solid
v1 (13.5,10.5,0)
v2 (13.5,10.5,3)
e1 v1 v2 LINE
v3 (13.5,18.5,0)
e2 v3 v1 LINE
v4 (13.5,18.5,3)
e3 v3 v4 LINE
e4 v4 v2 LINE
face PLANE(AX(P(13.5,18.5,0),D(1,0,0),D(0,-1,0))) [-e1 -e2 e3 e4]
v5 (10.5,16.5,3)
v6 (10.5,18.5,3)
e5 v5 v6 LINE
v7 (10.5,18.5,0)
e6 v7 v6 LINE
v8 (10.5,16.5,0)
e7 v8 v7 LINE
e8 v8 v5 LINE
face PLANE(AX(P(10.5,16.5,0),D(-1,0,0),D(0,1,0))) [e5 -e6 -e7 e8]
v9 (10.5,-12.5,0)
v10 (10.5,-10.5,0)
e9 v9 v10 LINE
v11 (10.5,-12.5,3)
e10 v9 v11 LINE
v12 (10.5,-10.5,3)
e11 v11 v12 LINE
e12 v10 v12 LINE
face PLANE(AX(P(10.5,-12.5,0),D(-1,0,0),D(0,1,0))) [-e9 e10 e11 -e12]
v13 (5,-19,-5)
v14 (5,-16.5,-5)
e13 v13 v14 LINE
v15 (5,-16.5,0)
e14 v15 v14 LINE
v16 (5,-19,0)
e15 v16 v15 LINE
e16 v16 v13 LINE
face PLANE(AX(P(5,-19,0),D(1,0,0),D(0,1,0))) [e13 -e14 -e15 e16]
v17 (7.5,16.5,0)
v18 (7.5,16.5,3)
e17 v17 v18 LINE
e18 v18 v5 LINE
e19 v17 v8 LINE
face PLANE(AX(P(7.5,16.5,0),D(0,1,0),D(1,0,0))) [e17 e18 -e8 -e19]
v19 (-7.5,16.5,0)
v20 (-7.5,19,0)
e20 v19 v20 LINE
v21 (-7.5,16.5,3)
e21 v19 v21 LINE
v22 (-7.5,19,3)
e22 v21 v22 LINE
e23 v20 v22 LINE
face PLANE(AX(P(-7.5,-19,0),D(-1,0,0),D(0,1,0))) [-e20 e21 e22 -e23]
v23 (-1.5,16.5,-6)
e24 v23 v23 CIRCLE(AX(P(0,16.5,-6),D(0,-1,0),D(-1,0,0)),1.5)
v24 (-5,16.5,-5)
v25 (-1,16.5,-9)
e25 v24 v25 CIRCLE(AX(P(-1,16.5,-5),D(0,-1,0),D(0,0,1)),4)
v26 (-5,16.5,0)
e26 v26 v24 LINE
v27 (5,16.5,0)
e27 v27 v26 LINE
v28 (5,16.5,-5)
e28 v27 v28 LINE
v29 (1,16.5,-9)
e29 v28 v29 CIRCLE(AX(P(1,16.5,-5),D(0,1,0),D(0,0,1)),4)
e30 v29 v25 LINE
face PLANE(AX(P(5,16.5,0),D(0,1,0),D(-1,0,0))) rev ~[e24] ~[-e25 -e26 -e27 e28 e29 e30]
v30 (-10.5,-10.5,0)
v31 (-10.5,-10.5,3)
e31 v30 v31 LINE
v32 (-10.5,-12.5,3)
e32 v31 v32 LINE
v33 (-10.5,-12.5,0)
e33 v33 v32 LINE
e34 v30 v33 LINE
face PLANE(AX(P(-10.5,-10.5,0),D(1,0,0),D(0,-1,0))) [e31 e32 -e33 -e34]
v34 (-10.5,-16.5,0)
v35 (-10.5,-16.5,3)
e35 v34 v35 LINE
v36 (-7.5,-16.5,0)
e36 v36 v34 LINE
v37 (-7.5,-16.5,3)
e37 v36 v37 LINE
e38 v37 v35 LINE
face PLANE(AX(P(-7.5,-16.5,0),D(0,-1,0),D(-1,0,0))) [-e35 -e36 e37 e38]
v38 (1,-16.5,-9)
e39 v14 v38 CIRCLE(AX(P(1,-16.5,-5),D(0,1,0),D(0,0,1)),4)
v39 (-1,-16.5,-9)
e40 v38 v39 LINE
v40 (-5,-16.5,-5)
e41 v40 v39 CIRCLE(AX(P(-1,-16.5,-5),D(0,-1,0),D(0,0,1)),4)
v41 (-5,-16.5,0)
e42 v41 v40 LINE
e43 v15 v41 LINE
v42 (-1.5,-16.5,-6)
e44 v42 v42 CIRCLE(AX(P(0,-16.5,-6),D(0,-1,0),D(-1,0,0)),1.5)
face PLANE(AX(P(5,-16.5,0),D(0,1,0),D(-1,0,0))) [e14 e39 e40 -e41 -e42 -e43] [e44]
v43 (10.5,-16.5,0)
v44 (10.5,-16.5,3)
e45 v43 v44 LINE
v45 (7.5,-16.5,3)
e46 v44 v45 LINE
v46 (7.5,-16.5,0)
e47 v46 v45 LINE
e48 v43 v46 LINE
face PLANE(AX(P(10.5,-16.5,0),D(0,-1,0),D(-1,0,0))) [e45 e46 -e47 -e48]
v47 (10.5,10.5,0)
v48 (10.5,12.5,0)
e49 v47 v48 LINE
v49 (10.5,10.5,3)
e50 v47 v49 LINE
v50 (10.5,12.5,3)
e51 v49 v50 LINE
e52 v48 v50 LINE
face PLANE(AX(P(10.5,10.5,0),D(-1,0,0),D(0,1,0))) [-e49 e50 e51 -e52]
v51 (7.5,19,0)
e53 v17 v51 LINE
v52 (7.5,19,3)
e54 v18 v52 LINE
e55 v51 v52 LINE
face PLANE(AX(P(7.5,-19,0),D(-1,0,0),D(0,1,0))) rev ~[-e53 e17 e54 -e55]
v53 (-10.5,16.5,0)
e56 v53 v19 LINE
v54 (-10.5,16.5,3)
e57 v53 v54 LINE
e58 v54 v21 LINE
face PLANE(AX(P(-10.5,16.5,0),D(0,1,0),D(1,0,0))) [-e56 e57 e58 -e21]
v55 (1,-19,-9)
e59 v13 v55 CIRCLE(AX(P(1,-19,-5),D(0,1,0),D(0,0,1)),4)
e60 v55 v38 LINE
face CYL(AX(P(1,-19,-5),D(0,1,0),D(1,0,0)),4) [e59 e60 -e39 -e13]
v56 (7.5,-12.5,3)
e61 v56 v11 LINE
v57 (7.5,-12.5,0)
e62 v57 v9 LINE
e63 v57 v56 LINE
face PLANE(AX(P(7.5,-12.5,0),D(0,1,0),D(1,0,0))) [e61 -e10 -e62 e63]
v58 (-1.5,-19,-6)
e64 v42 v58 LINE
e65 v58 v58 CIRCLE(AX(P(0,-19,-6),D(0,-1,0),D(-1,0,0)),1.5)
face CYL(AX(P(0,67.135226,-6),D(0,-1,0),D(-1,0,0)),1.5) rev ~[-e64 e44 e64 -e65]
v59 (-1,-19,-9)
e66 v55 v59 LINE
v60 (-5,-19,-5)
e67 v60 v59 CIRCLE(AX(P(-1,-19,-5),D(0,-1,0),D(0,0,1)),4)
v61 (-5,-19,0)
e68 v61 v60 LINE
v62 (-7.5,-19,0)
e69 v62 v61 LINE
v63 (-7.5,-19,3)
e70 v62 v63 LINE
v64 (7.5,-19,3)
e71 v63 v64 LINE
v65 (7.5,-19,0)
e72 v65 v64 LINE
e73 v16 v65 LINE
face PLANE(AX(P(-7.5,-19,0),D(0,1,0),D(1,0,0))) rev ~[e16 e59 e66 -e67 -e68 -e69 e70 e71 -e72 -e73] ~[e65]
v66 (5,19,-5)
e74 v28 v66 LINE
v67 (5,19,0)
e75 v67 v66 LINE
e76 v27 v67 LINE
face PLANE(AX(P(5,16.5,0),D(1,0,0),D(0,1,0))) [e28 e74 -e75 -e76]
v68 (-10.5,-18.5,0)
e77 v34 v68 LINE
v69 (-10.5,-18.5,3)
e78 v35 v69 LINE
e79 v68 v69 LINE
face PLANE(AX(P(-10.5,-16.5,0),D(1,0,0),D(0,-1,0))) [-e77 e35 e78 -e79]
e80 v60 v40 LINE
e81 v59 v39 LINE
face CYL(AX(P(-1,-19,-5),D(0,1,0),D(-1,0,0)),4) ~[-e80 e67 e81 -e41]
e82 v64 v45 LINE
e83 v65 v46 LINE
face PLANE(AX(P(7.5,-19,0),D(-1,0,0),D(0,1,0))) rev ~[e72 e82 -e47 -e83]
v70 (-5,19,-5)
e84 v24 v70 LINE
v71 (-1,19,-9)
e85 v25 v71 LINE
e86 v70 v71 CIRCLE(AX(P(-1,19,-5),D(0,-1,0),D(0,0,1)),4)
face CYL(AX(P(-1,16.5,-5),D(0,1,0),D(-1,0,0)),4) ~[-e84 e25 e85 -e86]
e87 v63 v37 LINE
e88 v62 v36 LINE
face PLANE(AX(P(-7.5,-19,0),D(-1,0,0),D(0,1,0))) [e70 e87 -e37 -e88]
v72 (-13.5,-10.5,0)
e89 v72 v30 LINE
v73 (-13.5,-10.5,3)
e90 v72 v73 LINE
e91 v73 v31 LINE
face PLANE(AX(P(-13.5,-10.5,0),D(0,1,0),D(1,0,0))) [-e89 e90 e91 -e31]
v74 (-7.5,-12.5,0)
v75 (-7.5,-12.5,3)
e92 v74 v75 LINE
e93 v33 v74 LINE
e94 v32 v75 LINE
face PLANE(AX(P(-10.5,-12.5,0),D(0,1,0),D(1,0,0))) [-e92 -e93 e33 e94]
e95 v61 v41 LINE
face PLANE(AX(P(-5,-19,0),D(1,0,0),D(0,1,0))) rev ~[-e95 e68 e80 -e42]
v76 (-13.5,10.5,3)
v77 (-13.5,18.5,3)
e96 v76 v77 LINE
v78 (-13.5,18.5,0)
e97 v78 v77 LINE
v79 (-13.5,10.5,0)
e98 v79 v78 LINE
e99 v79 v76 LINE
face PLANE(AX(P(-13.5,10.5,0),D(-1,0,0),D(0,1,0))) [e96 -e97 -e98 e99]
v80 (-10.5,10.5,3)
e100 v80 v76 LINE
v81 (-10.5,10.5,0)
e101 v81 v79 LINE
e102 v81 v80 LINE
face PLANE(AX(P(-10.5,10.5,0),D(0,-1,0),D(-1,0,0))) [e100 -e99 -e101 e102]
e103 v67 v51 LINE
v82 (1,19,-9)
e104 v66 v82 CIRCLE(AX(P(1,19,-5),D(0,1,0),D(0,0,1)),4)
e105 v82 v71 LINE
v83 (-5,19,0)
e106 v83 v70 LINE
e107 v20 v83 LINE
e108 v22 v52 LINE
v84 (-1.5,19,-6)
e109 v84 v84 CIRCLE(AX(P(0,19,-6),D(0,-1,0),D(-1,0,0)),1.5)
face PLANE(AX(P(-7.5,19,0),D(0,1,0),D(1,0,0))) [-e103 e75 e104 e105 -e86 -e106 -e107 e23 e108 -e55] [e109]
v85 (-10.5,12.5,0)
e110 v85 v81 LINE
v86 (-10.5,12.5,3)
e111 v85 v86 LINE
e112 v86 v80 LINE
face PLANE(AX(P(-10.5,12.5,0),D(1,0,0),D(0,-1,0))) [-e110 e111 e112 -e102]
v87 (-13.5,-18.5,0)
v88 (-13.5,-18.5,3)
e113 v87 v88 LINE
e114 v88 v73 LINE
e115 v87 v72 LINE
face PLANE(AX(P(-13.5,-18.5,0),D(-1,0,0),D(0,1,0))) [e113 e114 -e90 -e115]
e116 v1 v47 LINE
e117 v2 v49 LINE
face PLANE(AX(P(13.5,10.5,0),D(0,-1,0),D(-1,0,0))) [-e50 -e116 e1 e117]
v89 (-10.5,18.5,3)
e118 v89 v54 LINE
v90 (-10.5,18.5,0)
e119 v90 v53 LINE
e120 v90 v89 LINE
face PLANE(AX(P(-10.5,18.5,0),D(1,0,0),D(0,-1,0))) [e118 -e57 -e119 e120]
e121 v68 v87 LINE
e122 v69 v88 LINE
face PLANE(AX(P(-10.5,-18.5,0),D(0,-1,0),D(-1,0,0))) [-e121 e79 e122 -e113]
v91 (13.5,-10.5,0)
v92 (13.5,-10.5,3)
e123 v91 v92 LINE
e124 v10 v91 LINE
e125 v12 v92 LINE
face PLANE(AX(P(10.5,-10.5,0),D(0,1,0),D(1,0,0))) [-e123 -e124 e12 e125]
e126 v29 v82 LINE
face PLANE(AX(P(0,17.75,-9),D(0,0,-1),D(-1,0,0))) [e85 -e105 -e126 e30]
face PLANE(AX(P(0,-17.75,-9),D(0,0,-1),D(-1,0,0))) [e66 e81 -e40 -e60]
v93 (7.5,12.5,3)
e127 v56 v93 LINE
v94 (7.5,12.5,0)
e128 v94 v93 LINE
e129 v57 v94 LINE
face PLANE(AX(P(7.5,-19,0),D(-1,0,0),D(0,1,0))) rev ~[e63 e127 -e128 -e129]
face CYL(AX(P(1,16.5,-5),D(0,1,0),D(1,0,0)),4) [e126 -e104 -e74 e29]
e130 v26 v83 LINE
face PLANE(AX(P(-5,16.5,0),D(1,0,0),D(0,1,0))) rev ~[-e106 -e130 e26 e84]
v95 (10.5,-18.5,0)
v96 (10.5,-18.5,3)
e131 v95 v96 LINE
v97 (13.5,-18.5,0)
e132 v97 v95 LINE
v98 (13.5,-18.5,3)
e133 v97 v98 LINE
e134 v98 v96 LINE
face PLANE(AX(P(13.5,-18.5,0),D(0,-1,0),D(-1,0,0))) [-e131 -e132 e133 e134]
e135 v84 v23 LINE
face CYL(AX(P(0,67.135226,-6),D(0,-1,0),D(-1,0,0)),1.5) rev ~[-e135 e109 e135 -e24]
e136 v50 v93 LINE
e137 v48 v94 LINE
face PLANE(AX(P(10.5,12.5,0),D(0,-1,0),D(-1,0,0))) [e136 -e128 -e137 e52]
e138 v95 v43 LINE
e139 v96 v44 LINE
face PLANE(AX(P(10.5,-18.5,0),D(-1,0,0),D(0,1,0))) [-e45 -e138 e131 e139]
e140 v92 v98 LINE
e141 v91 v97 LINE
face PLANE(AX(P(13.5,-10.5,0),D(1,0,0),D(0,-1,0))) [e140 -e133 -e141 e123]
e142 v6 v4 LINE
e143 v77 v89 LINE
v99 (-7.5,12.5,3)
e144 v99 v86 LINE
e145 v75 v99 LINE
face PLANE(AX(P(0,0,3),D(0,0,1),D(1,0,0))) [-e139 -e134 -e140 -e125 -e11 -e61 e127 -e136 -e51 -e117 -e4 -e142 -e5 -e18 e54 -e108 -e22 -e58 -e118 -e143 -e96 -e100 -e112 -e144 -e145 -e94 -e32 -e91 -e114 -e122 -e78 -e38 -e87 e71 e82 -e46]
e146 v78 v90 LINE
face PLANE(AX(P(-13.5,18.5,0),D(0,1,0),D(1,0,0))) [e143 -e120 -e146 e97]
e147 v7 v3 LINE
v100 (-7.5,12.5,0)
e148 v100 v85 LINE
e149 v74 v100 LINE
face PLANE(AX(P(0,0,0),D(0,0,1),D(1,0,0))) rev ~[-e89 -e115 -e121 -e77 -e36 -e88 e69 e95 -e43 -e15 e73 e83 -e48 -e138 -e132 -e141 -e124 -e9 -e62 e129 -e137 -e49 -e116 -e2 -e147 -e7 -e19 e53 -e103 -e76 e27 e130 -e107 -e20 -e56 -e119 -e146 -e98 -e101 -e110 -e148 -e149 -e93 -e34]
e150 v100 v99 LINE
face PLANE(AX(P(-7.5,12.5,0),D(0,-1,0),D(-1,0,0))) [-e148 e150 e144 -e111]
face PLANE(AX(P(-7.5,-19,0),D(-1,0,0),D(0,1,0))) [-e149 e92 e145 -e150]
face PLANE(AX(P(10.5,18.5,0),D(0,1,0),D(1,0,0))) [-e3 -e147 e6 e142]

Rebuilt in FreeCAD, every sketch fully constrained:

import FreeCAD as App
import Part
import Sketcher

V = App.Vector


def edges_at(feature, points):
    """Names of the edges that pass closest to the given points."""
    edges = feature.Shape.Edges
    near = lambda p: min(range(len(edges)), key=lambda i: edges[i].distToShape(Part.Vertex(*p))[0])
    return sorted({f"Edge{near(p) + 1}" for p in points})


def add_polygon(sketch, points):
    """Adds a closed chain of lines whose ends are joined by coincident constraints."""
    first, n = sketch.GeometryCount, len(points)
    for a, b in zip(points, points[1:] + points[:1]):
        sketch.addGeometry(Part.LineSegment(App.Vector(*a, 0), App.Vector(*b, 0)), False)
    for i in range(n):
        sketch.addConstraint(Sketcher.Constraint("Coincident", first + i, 2, first + (i + 1) % n, 1))

doc = App.newDocument("Part")
body = doc.addObject("PartDesign::Body", "Body")

sketch1 = body.newObject("Sketcher::SketchObject", "Sketch")
sketch1.AttachmentSupport = (doc.getObject("XY_Plane"), [""])
sketch1.MapMode = "FlatFace"
add_polygon(sketch1, [(-7.5, 19), (-7.5, -19), (7.5, -19), (7.5, 19)])
sketch1.addConstraint([
    Sketcher.Constraint("Vertical", 0),
    Sketcher.Constraint("Horizontal", 1),
    Sketcher.Constraint("Vertical", 2),
    Sketcher.Constraint("Horizontal", 3),
    Sketcher.Constraint("Symmetric", 0, 2, 2, 2, -1, 1),
    Sketcher.Constraint("DistanceX", 1, 1, 1, 2, 15.0),
    Sketcher.Constraint("DistanceY", 0, 2, 0, 1, 38.0),
])
pad1 = body.newObject("PartDesign::Pad", "Pad")
pad1.Profile = sketch1
pad1.Length = 3

sketch2 = body.newObject("Sketcher::SketchObject", "Sketch001")
sketch2.AttachmentSupport = (doc.getObject("XY_Plane"), [""])
sketch2.MapMode = "FlatFace"
add_polygon(sketch2, [(7.5, 16.5), (10.5, 16.5), (10.5, 18.5), (13.5, 18.5), (13.5, 10.5), (10.5, 10.5), (10.5, 12.5), (7.5, 12.5)])
add_polygon(sketch2, [(-7.5, 16.5), (-7.5, 12.5), (-10.5, 12.5), (-10.5, 10.5), (-13.5, 10.5), (-13.5, 18.5), (-10.5, 18.5), (-10.5, 16.5)])
add_polygon(sketch2, [(-7.5, -16.5), (-10.5, -16.5), (-10.5, -18.5), (-13.5, -18.5), (-13.5, -10.5), (-10.5, -10.5), (-10.5, -12.5), (-7.5, -12.5)])
add_polygon(sketch2, [(7.5, -16.5), (7.5, -12.5), (10.5, -12.5), (10.5, -10.5), (13.5, -10.5), (13.5, -18.5), (10.5, -18.5), (10.5, -16.5)])
sketch2.addConstraint([
    Sketcher.Constraint("Horizontal", 0),
    Sketcher.Constraint("Vertical", 1),
    Sketcher.Constraint("Horizontal", 2),
    Sketcher.Constraint("Vertical", 3),
    Sketcher.Constraint("Horizontal", 4),
    Sketcher.Constraint("Vertical", 5),
    Sketcher.Constraint("Horizontal", 6),
    Sketcher.Constraint("Vertical", 7),
    Sketcher.Constraint("Vertical", 8),
    Sketcher.Constraint("Horizontal", 9),
    Sketcher.Constraint("Vertical", 10),
    Sketcher.Constraint("Horizontal", 11),
    Sketcher.Constraint("Vertical", 12),
    Sketcher.Constraint("Horizontal", 13),
    Sketcher.Constraint("Vertical", 14),
    Sketcher.Constraint("Horizontal", 15),
    Sketcher.Constraint("Horizontal", 16),
    Sketcher.Constraint("Vertical", 17),
    Sketcher.Constraint("Horizontal", 18),
    Sketcher.Constraint("Vertical", 19),
    Sketcher.Constraint("Horizontal", 20),
    Sketcher.Constraint("Vertical", 21),
    Sketcher.Constraint("Horizontal", 22),
    Sketcher.Constraint("Vertical", 23),
    Sketcher.Constraint("Vertical", 24),
    Sketcher.Constraint("Horizontal", 25),
    Sketcher.Constraint("Vertical", 26),
    Sketcher.Constraint("Horizontal", 27),
    Sketcher.Constraint("Vertical", 28),
    Sketcher.Constraint("Horizontal", 29),
    Sketcher.Constraint("Vertical", 30),
    Sketcher.Constraint("Horizontal", 31),
    Sketcher.Constraint("Symmetric", 0, 2, 16, 2, -1, 1),
    Sketcher.Constraint("Symmetric", 2, 2, 18, 2, -1, 1),
    Sketcher.Constraint("Symmetric", 4, 2, 20, 2, -1, 1),
    Sketcher.Constraint("Symmetric", 6, 2, 22, 2, -1, 1),
    Sketcher.Constraint("Symmetric", 8, 2, 24, 2, -1, 1),
    Sketcher.Constraint("Symmetric", 10, 2, 26, 2, -1, 1),
    Sketcher.Constraint("Symmetric", 12, 2, 28, 2, -1, 1),
    Sketcher.Constraint("Symmetric", 14, 2, 30, 2, -1, 1),
    Sketcher.Constraint("Symmetric", 6, 2, 8, 2, -2),
    Sketcher.Constraint("Symmetric", 4, 2, 10, 2, -2),
    Sketcher.Constraint("Symmetric", 2, 2, 12, 2, -2),
    Sketcher.Constraint("Symmetric", 0, 2, 14, 2, -2),
    Sketcher.Constraint("Vertical", 1, 2, 4, 2),
    Sketcher.Constraint("Equal", 0, 2),
    Sketcher.Constraint("Equal", 1, 5),
    Sketcher.Constraint("DistanceX", 0, 1, 0, 2, 3.0),
    Sketcher.Constraint("DistanceY", 1, 1, 1, 2, 2.0),
    Sketcher.Constraint("DistanceY", 3, 2, 3, 1, 8.0),
    Sketcher.Constraint("DistanceX", 8, 2, 6, 2, 15.0),
    Sketcher.Constraint("DistanceY", 16, 2, 10, 2, 27.0),
])
pad2 = body.newObject("PartDesign::Pad", "Pad001")
pad2.Profile = sketch2
pad2.Length = 3

sketch3 = body.newObject("Sketcher::SketchObject", "Sketch002")
sketch3.AttachmentSupport = (doc.getObject("XY_Plane"), [""])
sketch3.MapMode = "FlatFace"
add_polygon(sketch3, [(5, 19), (5, 16.5), (-5, 16.5), (-5, 19)])
add_polygon(sketch3, [(5, -16.5), (5, -19), (-5, -19), (-5, -16.5)])
sketch3.addConstraint([
    Sketcher.Constraint("Vertical", 0),
    Sketcher.Constraint("Horizontal", 1),
    Sketcher.Constraint("Vertical", 2),
    Sketcher.Constraint("Horizontal", 3),
    Sketcher.Constraint("Vertical", 4),
    Sketcher.Constraint("Horizontal", 5),
    Sketcher.Constraint("Vertical", 6),
    Sketcher.Constraint("Horizontal", 7),
    Sketcher.Constraint("Symmetric", 2, 2, 4, 2, -1, 1),
    Sketcher.Constraint("Symmetric", 0, 2, 6, 2, -1, 1),
    Sketcher.Constraint("Vertical", 3, 2, 4, 2),
    Sketcher.Constraint("DistanceX", 1, 2, 1, 1, 10.0),
    Sketcher.Constraint("DistanceY", 0, 2, 0, 1, 2.5),
    Sketcher.Constraint("DistanceY", -1, 1, 2, 2, 19.0),
])
pad3 = body.newObject("PartDesign::Pad", "Pad002")
pad3.Profile = sketch3
pad3.Length = 9
pad3.Reversed = True

sketch4 = body.newObject("Sketcher::SketchObject", "Sketch003")
sketch4.AttachmentSupport = (doc.getObject("XZ_Plane"), [""])
sketch4.MapMode = "FlatFace"
sketch4.AttachmentOffset = App.Placement(V(0, 0, -19), App.Rotation())
sketch4.addGeometry(Part.Circle(V(0, -6, 0), V(0, 0, 1), 1.5), False)
sketch4.addConstraint([
    Sketcher.Constraint("PointOnObject", 0, 3, -2),
    Sketcher.Constraint("Diameter", 0, 3.0),
    Sketcher.Constraint("DistanceY", 0, 3, -1, 1, 6.0),
])
doc.recompute()
hole = body.newObject("PartDesign::Hole", "Hole")
hole.Profile = sketch4
hole.ThreadType = "None"
hole.Diameter = 3
hole.DepthType = "ThroughAll"
hole.Reversed = True
doc.recompute()

fillet = body.newObject("PartDesign::Fillet", "Fillet")
fillet.Base = (hole, edges_at(hole, [
    (5, 17.75, -9),
    (-5, 17.75, -9),
    (-5, -17.75, -9),
    (5, -17.75, -9),
]))
fillet.Radius = 4

doc.recompute()
